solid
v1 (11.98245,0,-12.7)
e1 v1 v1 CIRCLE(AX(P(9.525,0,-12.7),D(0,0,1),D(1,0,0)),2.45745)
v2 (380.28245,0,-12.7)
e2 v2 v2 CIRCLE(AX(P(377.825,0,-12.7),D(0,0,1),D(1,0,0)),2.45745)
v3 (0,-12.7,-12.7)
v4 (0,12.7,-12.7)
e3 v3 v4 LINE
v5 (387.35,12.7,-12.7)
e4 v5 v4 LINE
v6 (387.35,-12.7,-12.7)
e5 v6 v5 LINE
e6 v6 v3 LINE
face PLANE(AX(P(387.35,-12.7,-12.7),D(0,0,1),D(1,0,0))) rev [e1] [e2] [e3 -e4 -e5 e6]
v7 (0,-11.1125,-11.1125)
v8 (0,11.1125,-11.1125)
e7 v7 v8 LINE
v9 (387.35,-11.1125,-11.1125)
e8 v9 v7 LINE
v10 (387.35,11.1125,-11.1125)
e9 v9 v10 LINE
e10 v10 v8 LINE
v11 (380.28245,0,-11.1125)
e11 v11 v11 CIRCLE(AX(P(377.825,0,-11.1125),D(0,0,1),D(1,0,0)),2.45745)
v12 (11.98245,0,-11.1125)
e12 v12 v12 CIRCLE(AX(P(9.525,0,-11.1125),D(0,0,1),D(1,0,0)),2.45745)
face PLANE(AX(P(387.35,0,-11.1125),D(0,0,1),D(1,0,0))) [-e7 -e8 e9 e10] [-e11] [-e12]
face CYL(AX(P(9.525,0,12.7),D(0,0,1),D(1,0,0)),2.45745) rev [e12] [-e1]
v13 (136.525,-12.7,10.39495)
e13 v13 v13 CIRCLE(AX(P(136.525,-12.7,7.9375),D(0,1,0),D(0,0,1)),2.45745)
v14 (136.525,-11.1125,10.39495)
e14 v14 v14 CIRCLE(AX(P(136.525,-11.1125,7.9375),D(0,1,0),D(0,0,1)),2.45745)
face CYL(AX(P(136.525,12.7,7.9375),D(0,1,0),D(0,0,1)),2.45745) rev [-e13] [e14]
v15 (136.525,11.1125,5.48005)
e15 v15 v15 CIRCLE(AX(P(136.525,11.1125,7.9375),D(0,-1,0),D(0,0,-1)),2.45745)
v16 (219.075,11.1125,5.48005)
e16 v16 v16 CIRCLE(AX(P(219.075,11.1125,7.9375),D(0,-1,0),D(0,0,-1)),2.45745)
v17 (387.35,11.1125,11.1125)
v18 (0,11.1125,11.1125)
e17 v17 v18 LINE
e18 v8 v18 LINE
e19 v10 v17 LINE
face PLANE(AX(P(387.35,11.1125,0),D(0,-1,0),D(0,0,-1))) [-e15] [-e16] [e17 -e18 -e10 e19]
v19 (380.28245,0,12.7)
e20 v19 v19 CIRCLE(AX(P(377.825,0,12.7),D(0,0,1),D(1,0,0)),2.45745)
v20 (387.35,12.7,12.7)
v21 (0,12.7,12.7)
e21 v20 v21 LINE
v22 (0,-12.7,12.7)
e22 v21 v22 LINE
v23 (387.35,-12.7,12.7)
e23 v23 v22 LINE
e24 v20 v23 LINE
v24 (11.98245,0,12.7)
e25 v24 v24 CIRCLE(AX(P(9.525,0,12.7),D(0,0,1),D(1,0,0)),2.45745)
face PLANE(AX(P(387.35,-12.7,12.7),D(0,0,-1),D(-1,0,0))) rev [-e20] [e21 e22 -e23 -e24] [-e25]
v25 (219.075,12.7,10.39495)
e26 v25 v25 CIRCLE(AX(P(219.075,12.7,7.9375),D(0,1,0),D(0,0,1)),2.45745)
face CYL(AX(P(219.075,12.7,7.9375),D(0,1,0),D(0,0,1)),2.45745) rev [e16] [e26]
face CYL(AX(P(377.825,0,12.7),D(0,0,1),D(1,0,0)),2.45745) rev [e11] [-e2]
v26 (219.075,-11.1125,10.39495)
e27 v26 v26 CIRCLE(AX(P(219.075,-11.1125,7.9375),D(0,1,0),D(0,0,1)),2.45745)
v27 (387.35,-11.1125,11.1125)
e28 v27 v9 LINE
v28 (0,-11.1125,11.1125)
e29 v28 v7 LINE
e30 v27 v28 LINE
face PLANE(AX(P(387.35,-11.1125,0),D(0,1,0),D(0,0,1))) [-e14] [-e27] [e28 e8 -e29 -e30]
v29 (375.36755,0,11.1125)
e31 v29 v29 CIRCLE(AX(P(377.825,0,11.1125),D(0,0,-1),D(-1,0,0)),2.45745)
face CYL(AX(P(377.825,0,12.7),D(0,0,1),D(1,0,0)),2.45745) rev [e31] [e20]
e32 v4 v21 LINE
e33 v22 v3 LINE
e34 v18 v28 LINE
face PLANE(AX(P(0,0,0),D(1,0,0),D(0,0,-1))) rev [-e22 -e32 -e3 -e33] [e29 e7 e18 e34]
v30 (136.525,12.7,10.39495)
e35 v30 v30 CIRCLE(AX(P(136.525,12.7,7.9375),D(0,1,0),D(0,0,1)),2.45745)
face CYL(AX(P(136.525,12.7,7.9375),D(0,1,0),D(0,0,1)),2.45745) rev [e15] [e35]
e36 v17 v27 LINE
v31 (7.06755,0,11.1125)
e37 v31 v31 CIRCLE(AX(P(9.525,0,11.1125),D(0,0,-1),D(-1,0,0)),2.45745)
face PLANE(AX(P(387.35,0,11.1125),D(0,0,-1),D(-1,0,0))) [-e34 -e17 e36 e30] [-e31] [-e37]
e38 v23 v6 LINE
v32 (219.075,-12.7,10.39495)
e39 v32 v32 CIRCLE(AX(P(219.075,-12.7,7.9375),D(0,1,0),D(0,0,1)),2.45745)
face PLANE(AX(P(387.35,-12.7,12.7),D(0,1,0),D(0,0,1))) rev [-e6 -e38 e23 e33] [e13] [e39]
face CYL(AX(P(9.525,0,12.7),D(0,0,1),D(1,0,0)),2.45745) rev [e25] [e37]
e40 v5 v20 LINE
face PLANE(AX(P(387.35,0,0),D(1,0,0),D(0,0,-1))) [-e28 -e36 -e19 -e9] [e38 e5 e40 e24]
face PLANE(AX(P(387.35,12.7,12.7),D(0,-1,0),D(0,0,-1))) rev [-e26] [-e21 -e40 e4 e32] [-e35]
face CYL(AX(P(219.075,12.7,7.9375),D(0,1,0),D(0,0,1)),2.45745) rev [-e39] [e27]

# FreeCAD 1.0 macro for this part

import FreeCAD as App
import Part
import Sketcher
from FreeCAD import Vector
Q = App.Units.Quantity


def add_polygon(sketch, points):
    """Adds a closed chain of lines whose ends are joined by coincident constraints."""
    first, n = sketch.GeometryCount, len(points)
    for a, b in zip(points, points[1:] + points[:1]):
        sketch.addGeometry(Part.LineSegment(App.Vector(*a, 0), App.Vector(*b, 0)), False)
    for i in range(n):
        sketch.addConstraint(Sketcher.Constraint("Coincident", first + i, 2, first + (i + 1) % n, 1))

doc = App.newDocument("Part")
body = doc.addObject("PartDesign::Body", "Body")

# Sketch on YZ plane
sketch1 = body.newObject("Sketcher::SketchObject", "Sketch")
sketch1.AttachmentSupport = (doc.getObject("YZ_Plane"), [""])
sketch1.MapMode = "FlatFace"
add_polygon(sketch1, [(12.7, 12.7), (-12.7, 12.7), (-12.7, -12.7), (12.7, -12.7)])  # lines 0-3
add_polygon(sketch1, [(-11.1125, -11.1125), (-11.1125, 11.1125), (11.1125, 11.1125), (11.1125, -11.1125)])  # lines 4-7
sketch1.addConstraint([
    Sketcher.Constraint("Horizontal", 0),
    Sketcher.Constraint("Vertical", 1),
    Sketcher.Constraint("Horizontal", 2),
    Sketcher.Constraint("Vertical", 3),
    Sketcher.Constraint("Vertical", 4),
    Sketcher.Constraint("Horizontal", 5),
    Sketcher.Constraint("Vertical", 6),
    Sketcher.Constraint("Horizontal", 7),
    Sketcher.Constraint("Symmetric", 0, 2, 2, 2, -1, 1),
    Sketcher.Constraint("Symmetric", 4, 2, 6, 2, -1, 1),
    Sketcher.Constraint("Equal", 2, 1),
    Sketcher.Constraint("Equal", 7, 4),
    Sketcher.Constraint("DistanceX", 0, 2, 0, 1, Q("1 in")),
    Sketcher.Constraint("DistanceX", 5, 1, 5, 2, Q("0.875 in")),
])
pad1 = body.newObject("PartDesign::Pad", "Pad")
pad1.Profile = sketch1
pad1.Length = Q("15.25 in")

# Sketch on XY plane
sketch2 = body.newObject("Sketcher::SketchObject", "Sketch001")
sketch2.AttachmentSupport = (doc.getObject("XY_Plane"), [""])
sketch2.MapMode = "FlatFace"
sketch2.AttachmentOffset = App.Placement(Vector(0, 0, 0.5 * 25.4), App.Rotation())
sketch2.addGeometry([
    Part.Circle(Vector(9.525, 0, 0), Vector(0, 0, 1), 2.45745),
    Part.Circle(Vector(377.825, 0, 0), Vector(0, 0, 1), 2.45745),
], False)
sketch2.addConstraint([
    Sketcher.Constraint("Equal", 0, 1),
    Sketcher.Constraint("PointOnObject", 0, 3, -1),
    Sketcher.Constraint("PointOnObject", 1, 3, -1),
    Sketcher.Constraint("Diameter", 0, Q("0.1935 in")),
    Sketcher.Constraint("DistanceX", 0, 3, 1, 3, Q("14.5 in")),
    Sketcher.Constraint("DistanceX", -1, 1, 0, 3, Q("0.375 in")),
])
doc.recompute()
hole = body.newObject("PartDesign::Hole", "Hole")
hole.Profile = sketch2
hole.ThreadType = "None"
hole.Diameter = Q("0.1935 in")
hole.DepthType = "ThroughAll"

# Sketch on XZ plane
sketch3 = body.newObject("Sketcher::SketchObject", "Sketch002")
sketch3.AttachmentSupport = (doc.getObject("XZ_Plane"), [""])
sketch3.MapMode = "FlatFace"
sketch3.AttachmentOffset = App.Placement(Vector(0, 0, -0.5 * 25.4), App.Rotation())
sketch3.addGeometry([
    Part.Circle(Vector(136.525, 7.9375, 0), Vector(0, 0, 1), 2.45745),
    Part.Circle(Vector(219.075, 7.9375, 0), Vector(0, 0, 1), 2.45745),
], False)
sketch3.addConstraint([
    Sketcher.Constraint("Equal", 0, 1),
    Sketcher.Constraint("Horizontal", 0, 3, 1, 3),
    Sketcher.Constraint("Diameter", 0, Q("0.1935 in")),
    Sketcher.Constraint("DistanceX", 0, 3, 1, 3, Q("3.25 in")),
    Sketcher.Constraint("DistanceX", -1, 1, 0, 3, Q("5.375 in")),
    Sketcher.Constraint("DistanceY", -1, 1, 0, 3, Q("0.3125 in")),
])
doc.recompute()
hole2 = body.newObject("PartDesign::Hole", "Hole001")
hole2.Profile = sketch3
hole2.ThreadType = "None"
hole2.Diameter = Q("0.1935 in")
hole2.DepthType = "ThroughAll"
hole2.Reversed = True

doc.recompute()
